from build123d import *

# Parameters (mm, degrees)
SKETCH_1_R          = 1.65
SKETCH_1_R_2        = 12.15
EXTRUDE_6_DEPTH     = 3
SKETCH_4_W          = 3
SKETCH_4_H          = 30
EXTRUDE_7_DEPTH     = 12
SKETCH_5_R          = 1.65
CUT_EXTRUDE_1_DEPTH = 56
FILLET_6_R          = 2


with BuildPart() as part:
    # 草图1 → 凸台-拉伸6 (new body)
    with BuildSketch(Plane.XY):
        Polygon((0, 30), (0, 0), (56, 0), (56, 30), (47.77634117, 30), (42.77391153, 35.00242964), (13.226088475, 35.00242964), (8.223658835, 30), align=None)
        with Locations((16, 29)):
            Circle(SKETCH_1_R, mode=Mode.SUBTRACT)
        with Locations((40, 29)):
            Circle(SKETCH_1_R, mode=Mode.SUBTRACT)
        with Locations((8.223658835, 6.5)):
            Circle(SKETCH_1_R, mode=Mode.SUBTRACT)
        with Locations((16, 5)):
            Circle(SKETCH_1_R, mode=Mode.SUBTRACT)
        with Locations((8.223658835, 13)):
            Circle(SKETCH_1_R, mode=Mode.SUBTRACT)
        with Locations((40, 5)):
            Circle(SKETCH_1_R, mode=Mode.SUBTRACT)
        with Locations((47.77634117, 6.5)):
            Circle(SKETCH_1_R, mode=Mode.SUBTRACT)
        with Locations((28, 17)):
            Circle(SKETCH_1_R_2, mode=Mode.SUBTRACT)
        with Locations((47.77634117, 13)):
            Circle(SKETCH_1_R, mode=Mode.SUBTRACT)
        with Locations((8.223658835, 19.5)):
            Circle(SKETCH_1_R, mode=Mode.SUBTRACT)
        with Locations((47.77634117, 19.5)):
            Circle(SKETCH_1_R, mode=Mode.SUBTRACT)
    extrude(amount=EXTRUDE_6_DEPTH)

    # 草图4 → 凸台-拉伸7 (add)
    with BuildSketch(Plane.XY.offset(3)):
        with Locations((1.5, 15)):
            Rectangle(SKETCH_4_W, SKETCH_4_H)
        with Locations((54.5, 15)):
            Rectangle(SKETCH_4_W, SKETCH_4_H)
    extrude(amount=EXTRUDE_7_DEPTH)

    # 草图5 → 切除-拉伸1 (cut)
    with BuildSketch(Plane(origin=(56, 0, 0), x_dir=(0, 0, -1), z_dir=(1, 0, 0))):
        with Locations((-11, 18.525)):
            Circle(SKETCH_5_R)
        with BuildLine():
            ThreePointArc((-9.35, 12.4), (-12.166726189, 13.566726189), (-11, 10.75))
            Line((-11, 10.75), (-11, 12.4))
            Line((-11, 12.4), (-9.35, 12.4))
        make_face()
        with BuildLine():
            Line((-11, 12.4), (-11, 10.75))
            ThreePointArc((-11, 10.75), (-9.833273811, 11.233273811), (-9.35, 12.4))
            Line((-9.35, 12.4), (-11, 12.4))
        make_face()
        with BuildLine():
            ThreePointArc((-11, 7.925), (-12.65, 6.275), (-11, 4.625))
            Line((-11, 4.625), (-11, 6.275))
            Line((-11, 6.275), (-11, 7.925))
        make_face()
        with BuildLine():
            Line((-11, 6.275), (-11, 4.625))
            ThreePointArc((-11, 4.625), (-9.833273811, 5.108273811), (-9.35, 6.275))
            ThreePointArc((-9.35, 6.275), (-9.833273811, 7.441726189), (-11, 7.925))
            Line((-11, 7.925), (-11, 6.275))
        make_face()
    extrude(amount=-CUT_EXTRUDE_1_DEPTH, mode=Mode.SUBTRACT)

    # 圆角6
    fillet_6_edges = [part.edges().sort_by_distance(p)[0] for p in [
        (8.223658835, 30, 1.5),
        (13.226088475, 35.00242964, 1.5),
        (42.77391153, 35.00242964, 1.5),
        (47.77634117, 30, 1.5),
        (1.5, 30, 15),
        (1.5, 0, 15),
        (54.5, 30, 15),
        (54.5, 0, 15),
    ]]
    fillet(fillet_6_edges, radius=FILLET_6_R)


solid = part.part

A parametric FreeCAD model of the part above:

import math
import FreeCAD as App
import Part
import Sketcher

V = App.Vector
Q = App.Units.Quantity


def edges_at(feature, points):
    """Names of the edges that pass closest to the given points."""
    edges = feature.Shape.Edges
    near = lambda p: min(range(len(edges)), key=lambda i: edges[i].distToShape(Part.Vertex(*p))[0])
    return sorted({f"Edge{near(p) + 1}" for p in points})


def add_polygon(sketch, points):
    """Adds a closed chain of lines whose ends are joined by coincident constraints."""
    first, n = sketch.GeometryCount, len(points)
    for a, b in zip(points, points[1:] + points[:1]):
        sketch.addGeometry(Part.LineSegment(App.Vector(*a, 0), App.Vector(*b, 0)), False)
    for i in range(n):
        sketch.addConstraint(Sketcher.Constraint("Coincident", first + i, 2, first + (i + 1) % n, 1))

doc = App.newDocument("Part")
body = doc.addObject("PartDesign::Body", "Body")

# Sketch on XY plane
sketch1 = doc.addObject("Sketcher::SketchObject", "Sketch")
body.addObject(sketch1)
sketch1.AttachmentSupport = (doc.XY_Plane, [""])
sketch1.MapMode = "FlatFace"
add_polygon(sketch1, [(0, 30), (0, 0), (56, 0), (56, 30), (47.776341, 30), (42.773912, 35.00243), (13.226088, 35.00243), (8.223659, 30)])  # lines 0-7
sketch1.addGeometry(Part.Circle(V(8.223659, 6.5, 0), V(0, 0, 1), 1.65), False)  # 8
sketch1.addGeometry(Part.Circle(V(16, 5, 0), V(0, 0, 1), 1.65), False)  # 9
sketch1.addGeometry(Part.Circle(V(8.223659, 13, 0), V(0, 0, 1), 1.65), False)  # 10
sketch1.addGeometry(Part.Circle(V(28, 17, 0), V(0, 0, 1), 12.15), False)  # 11
sketch1.addGeometry(Part.Circle(V(40, 5, 0), V(0, 0, 1), 1.65), False)  # 12
sketch1.addGeometry(Part.Circle(V(47.776341, 6.5, 0), V(0, 0, 1), 1.65), False)  # 13
sketch1.addGeometry(Part.Circle(V(47.776341, 13, 0), V(0, 0, 1), 1.65), False)  # 14
sketch1.addGeometry(Part.Circle(V(8.223659, 19.5, 0), V(0, 0, 1), 1.65), False)  # 15
sketch1.addGeometry(Part.Circle(V(16, 29, 0), V(0, 0, 1), 1.65), False)  # 16
sketch1.addGeometry(Part.Circle(V(47.776341, 19.5, 0), V(0, 0, 1), 1.65), False)  # 17
sketch1.addGeometry(Part.Circle(V(40, 29, 0), V(0, 0, 1), 1.65), False)  # 18
sketch1.addConstraint([
    Sketcher.Constraint("Vertical", 0),
    Sketcher.Constraint("Horizontal", 1),
    Sketcher.Constraint("Vertical", 2),
    Sketcher.Constraint("Horizontal", 3),
    Sketcher.Constraint("Horizontal", 5),
    Sketcher.Constraint("Horizontal", 7),
    Sketcher.Constraint("Coincident", 0, 2, -1, 1),
    Sketcher.Constraint("Equal", 8, 9),
    Sketcher.Constraint("Equal", 9, 10),
    Sketcher.Constraint("Equal", 10, 12),
    Sketcher.Constraint("Equal", 12, 13),
    Sketcher.Constraint("Equal", 13, 14),
    Sketcher.Constraint("Equal", 14, 15),
    Sketcher.Constraint("Equal", 15, 16),
    Sketcher.Constraint("Equal", 16, 17),
    Sketcher.Constraint("Equal", 17, 18),
    Sketcher.Constraint("Perpendicular", 4, 6),
    Sketcher.Constraint("Horizontal", 9, 3, 12, 3),
    Sketcher.Constraint("Horizontal", 8, 3, 13, 3),
    Sketcher.Constraint("Horizontal", 10, 3, 14, 3),
    Sketcher.Constraint("Horizontal", 15, 3, 17, 3),
    Sketcher.Constraint("Horizontal", 16, 3, 18, 3),
    Sketcher.Constraint("Horizontal", 3, 2, 6, 2),
    Sketcher.Constraint("Vertical", 8, 3, 10, 3),
    Sketcher.Constraint("Vertical", 13, 3, 14, 3),
    Sketcher.Constraint("Vertical", 10, 3, 15, 3),
    Sketcher.Constraint("Vertical", 9, 3, 16, 3),
    Sketcher.Constraint("Vertical", 14, 3, 17, 3),
    Sketcher.Constraint("Vertical", 12, 3, 18, 3),
    Sketcher.Constraint("Vertical", 17, 3, 3, 2),
    Sketcher.Constraint("Vertical", 15, 3, 6, 2),
    Sketcher.Constraint("Equal", 3, 7),
    Sketcher.Constraint("Equal", 4, 6),
    Sketcher.Constraint("Diameter", 8, Q("3.3 mm")),
    Sketcher.Constraint("Diameter", 11, Q("24.3 mm")),
    Sketcher.Constraint("DistanceX", 1, 1, 1, 2, Q("56 mm")),
    Sketcher.Constraint("DistanceY", 0, 2, 0, 1, Q("30 mm")),
    Sketcher.Constraint("DistanceX", -1, 1, 9, 3, Q("16 mm")),
    Sketcher.Constraint("DistanceY", -1, 1, 9, 3, Q("5 mm")),
    Sketcher.Constraint("DistanceY", -1, 1, 10, 3, Q("13 mm")),
    Sketcher.Constraint("DistanceX", -1, 1, 11, 3, Q("28 mm")),
    Sketcher.Constraint("DistanceY", -1, 1, 11, 3, Q("17 mm")),
    Sketcher.Constraint("DistanceX", -1, 1, 12, 3, Q("40 mm")),
    Sketcher.Constraint("DistanceY", -1, 1, 16, 3, Q("29 mm")),
    Sketcher.Constraint("DistanceY", 8, 3, 15, 3, Q("13 mm")),
    Sketcher.Constraint("DistanceY", -1, 1, 8, 3, Q("6.5 mm")),
    Sketcher.Constraint("DistanceX", 3, 2, 3, 1, Q("8.223659 mm")),
    Sketcher.Constraint("DistanceX", 5, 2, 5, 1, Q("29.547823 mm")),
])
pad1 = doc.addObject("PartDesign::Pad", "Pad")
body.addObject(pad1)
pad1.Profile = sketch1
pad1.Length = 3

# Sketch on XY plane
sketch2 = doc.addObject("Sketcher::SketchObject", "Sketch001")
body.addObject(sketch2)
sketch2.AttachmentSupport = (doc.XY_Plane, [""])
sketch2.MapMode = "FlatFace"
sketch2.AttachmentOffset = App.Placement(V(0, 0, 3), App.Rotation())
add_polygon(sketch2, [(0, 30), (0, 0), (3, 0), (3, 30)])  # lines 0-3
add_polygon(sketch2, [(53, 30), (53, 0), (56, 0), (56, 30)])  # lines 4-7
sketch2.addConstraint([
    Sketcher.Constraint("Vertical", 0),
    Sketcher.Constraint("Horizontal", 1),
    Sketcher.Constraint("Vertical", 2),
    Sketcher.Constraint("Horizontal", 3),
    Sketcher.Constraint("Vertical", 4),
    Sketcher.Constraint("Horizontal", 5),
    Sketcher.Constraint("Vertical", 6),
    Sketcher.Constraint("Horizontal", 7),
    Sketcher.Constraint("Coincident", 0, 2, -1, 1),
    Sketcher.Constraint("PointOnObject", 4, 2, -1),
    Sketcher.Constraint("Horizontal", 3, 2, 6, 2),
    Sketcher.Constraint("Equal", 3, 5),
    Sketcher.Constraint("DistanceX", 1, 1, 1, 2, Q("3 mm")),
    Sketcher.Constraint("DistanceY", 0, 2, 0, 1, Q("30 mm")),
    Sketcher.Constraint("DistanceX", -1, 1, 4, 2, Q("53 mm")),
])
pad2 = doc.addObject("PartDesign::Pad", "Pad001")
body.addObject(pad2)
pad2.Profile = sketch2
pad2.Length = 12

# Sketch on YZ plane
sketch3 = doc.addObject("Sketcher::SketchObject", "Sketch002")
body.addObject(sketch3)
sketch3.AttachmentSupport = (doc.YZ_Plane, [""])
sketch3.MapMode = "FlatFace"
sketch3.AttachmentOffset = App.Placement(V(0, 0, 56), App.Rotation())
sketch3.addGeometry([
    Part.Circle(V(18.525, 11, 0), V(0, 0, 1), 1.65),  # 0
    Part.ArcOfCircle(Part.Circle(V(12.4, 11, 0), V(0, 0, 1), 1.65), math.radians(-90), math.radians(180)),  # 1
    Part.ArcOfCircle(Part.Circle(V(12.4, 11, 0), V(0, 0, 1), 1.65), math.radians(180), math.radians(270)),  # 2
    Part.ArcOfCircle(Part.Circle(V(6.275, 11, 0), V(0, 0, 1), 1.65), math.radians(0), math.radians(180)),  # 3
    Part.ArcOfCircle(Part.Circle(V(6.275, 11, 0), V(0, 0, 1), 1.65), math.radians(180), math.radians(270)),  # 4
    Part.ArcOfCircle(Part.Circle(V(6.275, 11, 0), V(0, 0, 1), 1.65), math.radians(-90), math.radians(0)),  # 5
], False)
sketch3.addConstraint([
    Sketcher.Constraint("Tangent", 1, 1, 2, 2),
    Sketcher.Constraint("Coincident", 2, 1, 1, 2),
    Sketcher.Constraint("Tangent", 3, 2, 4, 1),
    Sketcher.Constraint("Tangent", 4, 2, 5, 1),
    Sketcher.Constraint("Tangent", 5, 2, 3, 1),
    Sketcher.Constraint("Equal", 0, 1),
    Sketcher.Constraint("Equal", 2, 3),
    Sketcher.Constraint("Horizontal", 0, 3, 1, 3),
    Sketcher.Constraint("Horizontal", 2, 3, 3, 3),
    Sketcher.Constraint("Horizontal", 5, 3, 2, 1),
    Sketcher.Constraint("Horizontal", 2, 1, 3, 2),
    Sketcher.Constraint("Horizontal", 3, 2, 5, 2),
    Sketcher.Constraint("Vertical", 2, 3, 1, 1),
    Sketcher.Constraint("Vertical", 5, 3, 4, 2),
    Sketcher.Constraint("Diameter", 0, Q("3.3 mm")),
    Sketcher.Constraint("DistanceY", -1, 1, 0, 3, Q("11 mm")),
    Sketcher.Constraint("DistanceX", -1, 1, 1, 3, Q("12.4 mm")),
    Sketcher.Constraint("DistanceX", 3, 3, 0, 3, Q("12.25 mm")),
    Sketcher.Constraint("DistanceX", -1, 1, 0, 3, Q("18.525 mm")),
])
pocket1 = doc.addObject("PartDesign::Pocket", "Pocket")
body.addObject(pocket1)
pocket1.Profile = sketch3
pocket1.Length = 56
doc.recompute()

fillet = doc.addObject("PartDesign::Fillet", "Fillet")
body.addObject(fillet)
fillet.Base = (pocket1, edges_at(pocket1, [
    (8.224, 30, 1.5),
    (13.226, 35.002, 1.5),
    (42.774, 35.002, 1.5),
    (47.776, 30, 1.5),
    (1.5, 30, 15),
    (1.5, 0, 15),
    (54.5, 30, 15),
    (54.5, 0, 15),
]))
fillet.Radius = 2

doc.recompute()
